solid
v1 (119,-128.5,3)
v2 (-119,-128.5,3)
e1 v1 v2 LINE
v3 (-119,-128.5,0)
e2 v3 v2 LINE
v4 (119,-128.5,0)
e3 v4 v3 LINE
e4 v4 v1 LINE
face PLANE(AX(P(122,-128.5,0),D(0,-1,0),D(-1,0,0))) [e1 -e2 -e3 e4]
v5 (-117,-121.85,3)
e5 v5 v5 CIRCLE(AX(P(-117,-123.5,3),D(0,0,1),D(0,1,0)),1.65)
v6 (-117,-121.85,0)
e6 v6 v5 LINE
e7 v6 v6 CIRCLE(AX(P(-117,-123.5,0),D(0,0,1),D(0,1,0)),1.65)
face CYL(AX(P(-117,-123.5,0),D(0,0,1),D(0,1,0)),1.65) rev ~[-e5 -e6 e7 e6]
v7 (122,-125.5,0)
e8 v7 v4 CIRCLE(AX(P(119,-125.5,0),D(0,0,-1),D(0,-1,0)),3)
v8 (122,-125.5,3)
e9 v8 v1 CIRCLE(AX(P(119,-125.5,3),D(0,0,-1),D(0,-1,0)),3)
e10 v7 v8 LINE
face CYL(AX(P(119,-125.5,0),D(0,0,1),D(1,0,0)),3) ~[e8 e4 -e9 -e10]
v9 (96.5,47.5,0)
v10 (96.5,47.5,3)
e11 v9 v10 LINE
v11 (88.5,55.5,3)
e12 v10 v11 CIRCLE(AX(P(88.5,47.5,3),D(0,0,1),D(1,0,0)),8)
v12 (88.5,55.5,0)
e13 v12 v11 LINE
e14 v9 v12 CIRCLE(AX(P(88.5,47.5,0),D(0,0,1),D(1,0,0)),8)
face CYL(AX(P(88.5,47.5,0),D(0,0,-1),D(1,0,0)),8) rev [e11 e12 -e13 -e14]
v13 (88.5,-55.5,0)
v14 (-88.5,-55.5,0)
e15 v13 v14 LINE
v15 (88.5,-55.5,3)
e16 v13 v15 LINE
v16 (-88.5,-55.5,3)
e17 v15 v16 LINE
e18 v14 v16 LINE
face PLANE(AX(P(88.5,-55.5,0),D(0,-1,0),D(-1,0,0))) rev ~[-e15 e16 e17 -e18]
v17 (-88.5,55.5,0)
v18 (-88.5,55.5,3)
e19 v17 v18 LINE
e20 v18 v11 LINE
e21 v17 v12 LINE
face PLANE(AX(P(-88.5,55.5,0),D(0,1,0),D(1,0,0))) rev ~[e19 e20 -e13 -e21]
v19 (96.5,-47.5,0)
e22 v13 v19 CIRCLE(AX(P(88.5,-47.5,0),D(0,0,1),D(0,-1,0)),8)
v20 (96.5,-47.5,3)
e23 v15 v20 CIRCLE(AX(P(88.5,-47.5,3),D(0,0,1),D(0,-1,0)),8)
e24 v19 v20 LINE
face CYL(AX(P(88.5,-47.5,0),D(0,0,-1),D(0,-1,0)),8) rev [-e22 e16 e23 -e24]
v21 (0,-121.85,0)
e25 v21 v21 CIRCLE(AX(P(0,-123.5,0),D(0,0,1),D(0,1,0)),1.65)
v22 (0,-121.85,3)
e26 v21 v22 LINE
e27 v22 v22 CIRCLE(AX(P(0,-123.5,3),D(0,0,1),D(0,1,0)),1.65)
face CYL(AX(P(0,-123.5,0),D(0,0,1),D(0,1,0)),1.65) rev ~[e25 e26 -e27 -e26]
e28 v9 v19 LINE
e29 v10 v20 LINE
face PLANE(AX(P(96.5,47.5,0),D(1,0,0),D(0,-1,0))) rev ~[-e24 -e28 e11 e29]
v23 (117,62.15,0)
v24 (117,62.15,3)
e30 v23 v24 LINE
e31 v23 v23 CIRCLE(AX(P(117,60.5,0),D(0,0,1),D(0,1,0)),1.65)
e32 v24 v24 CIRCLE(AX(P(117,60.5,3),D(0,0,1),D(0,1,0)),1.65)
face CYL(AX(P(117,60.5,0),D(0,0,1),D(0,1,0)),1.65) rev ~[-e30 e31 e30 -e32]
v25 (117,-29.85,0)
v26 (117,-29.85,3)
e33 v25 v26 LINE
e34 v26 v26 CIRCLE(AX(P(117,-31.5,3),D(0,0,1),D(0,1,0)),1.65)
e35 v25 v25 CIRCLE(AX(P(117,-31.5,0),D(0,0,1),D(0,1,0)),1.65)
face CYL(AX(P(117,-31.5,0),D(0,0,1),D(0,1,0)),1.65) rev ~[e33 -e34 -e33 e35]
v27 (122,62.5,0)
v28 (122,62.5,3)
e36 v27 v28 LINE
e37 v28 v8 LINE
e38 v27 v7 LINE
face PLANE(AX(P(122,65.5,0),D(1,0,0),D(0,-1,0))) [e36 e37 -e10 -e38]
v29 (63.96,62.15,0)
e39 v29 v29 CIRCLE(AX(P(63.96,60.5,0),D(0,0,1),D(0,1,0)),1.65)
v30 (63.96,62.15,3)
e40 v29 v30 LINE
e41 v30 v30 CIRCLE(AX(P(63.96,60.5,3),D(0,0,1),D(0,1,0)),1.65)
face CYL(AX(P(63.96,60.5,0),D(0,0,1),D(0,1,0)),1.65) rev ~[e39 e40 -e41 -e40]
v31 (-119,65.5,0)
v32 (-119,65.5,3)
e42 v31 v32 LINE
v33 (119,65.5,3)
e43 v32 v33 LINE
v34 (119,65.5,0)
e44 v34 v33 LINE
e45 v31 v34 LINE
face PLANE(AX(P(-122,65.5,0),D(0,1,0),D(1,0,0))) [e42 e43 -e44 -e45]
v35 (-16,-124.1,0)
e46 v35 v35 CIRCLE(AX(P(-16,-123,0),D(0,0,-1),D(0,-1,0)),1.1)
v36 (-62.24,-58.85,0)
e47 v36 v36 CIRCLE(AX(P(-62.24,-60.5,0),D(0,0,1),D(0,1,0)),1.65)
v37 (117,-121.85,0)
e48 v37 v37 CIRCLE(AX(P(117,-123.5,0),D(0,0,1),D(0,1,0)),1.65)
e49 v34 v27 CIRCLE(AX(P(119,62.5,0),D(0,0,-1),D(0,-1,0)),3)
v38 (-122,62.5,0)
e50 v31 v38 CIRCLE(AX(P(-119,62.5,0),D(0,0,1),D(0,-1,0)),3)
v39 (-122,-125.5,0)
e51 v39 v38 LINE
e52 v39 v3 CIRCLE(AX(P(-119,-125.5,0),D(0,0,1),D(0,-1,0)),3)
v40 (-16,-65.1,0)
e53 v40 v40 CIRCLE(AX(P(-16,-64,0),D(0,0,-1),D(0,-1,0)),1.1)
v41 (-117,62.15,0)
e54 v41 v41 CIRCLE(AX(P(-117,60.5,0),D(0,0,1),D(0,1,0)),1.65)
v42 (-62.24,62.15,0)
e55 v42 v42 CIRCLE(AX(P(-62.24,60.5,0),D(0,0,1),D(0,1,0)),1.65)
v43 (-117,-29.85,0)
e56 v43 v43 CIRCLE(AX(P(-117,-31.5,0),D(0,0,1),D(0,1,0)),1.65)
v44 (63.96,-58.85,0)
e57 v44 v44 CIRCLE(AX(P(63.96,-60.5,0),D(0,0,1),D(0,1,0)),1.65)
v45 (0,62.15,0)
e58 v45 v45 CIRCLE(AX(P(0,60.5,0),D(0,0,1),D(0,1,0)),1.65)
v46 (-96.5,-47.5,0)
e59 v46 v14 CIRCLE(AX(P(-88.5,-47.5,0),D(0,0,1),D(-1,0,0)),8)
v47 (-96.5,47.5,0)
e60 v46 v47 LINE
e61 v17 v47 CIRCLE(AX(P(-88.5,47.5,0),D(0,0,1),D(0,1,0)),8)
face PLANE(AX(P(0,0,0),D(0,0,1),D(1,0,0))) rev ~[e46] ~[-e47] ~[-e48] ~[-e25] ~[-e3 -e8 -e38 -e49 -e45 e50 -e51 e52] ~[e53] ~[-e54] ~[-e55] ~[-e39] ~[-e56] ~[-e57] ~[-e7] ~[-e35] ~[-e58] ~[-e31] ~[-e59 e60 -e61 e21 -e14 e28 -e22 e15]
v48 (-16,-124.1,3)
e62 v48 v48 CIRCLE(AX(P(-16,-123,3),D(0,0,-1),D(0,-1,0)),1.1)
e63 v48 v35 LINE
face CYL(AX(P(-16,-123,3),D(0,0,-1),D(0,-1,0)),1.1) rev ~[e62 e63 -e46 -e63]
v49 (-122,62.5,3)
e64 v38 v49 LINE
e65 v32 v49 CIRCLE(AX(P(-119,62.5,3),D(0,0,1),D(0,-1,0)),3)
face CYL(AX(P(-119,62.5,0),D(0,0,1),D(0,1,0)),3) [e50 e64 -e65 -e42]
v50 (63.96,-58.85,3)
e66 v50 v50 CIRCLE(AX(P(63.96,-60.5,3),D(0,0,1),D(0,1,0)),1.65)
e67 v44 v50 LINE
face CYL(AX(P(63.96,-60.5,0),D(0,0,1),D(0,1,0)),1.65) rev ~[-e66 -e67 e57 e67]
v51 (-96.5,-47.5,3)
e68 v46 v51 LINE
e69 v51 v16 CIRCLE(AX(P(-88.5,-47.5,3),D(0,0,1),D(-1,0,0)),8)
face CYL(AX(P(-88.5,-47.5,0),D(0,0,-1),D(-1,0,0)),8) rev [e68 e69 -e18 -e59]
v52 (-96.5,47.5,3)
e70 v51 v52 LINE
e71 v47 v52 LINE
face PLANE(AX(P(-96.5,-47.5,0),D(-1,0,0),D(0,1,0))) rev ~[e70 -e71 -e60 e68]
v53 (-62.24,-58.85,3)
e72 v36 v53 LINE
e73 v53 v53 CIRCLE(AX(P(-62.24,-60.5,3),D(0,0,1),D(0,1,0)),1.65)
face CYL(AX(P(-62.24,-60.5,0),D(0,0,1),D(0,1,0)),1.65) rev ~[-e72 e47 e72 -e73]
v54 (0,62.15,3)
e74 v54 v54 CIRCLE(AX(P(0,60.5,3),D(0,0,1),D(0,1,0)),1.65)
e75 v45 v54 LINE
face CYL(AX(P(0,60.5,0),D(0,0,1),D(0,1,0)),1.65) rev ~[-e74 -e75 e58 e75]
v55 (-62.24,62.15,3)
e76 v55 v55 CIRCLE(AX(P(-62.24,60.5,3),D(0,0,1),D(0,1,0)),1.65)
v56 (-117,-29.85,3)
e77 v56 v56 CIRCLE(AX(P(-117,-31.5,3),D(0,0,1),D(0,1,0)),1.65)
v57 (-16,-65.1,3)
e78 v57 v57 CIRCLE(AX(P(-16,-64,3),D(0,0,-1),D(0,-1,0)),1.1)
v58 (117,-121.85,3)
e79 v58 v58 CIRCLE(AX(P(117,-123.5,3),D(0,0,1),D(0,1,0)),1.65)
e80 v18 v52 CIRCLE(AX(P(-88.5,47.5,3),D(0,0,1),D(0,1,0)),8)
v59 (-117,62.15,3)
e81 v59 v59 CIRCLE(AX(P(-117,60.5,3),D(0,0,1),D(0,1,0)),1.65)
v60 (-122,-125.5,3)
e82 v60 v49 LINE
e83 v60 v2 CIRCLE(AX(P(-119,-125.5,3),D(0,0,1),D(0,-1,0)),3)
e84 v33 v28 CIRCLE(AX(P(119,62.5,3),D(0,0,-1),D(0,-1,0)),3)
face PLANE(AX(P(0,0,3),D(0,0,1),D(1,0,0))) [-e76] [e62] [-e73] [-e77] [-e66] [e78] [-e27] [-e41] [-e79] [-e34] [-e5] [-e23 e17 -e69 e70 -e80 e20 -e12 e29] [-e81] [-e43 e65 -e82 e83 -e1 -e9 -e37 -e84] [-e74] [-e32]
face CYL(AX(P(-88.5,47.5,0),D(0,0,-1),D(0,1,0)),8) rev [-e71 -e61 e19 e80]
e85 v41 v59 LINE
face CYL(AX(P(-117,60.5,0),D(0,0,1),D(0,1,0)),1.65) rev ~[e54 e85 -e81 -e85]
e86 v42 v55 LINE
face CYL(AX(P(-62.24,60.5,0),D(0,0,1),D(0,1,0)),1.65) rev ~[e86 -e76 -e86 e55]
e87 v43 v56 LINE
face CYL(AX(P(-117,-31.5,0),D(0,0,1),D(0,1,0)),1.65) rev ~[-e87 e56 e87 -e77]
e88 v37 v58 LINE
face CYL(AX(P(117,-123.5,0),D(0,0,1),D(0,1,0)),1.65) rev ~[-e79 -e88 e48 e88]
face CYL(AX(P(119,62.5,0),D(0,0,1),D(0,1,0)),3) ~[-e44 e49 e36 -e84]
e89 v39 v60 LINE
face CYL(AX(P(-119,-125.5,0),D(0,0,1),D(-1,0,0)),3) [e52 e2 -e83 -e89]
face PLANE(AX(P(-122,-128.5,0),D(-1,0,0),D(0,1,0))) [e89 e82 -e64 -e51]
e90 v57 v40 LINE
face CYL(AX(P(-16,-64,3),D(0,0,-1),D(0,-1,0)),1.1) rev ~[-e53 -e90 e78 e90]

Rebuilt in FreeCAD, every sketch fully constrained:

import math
import FreeCAD as App
import Part
import Sketcher

V = App.Vector
Q = App.Units.Quantity


def edges_at(feature, points):
    """Names of the edges that pass closest to the given points."""
    edges = feature.Shape.Edges
    near = lambda p: min(range(len(edges)), key=lambda i: edges[i].distToShape(Part.Vertex(*p))[0])
    return sorted({f"Edge{near(p) + 1}" for p in points})

doc = App.newDocument("Part")
body = doc.addObject("PartDesign::Body", "Body")

sketch1 = body.newObject("Sketcher::SketchObject", "Sketch")
sketch1.AttachmentSupport = (doc.getObject("XY_Plane"), [""])
sketch1.MapMode = "FlatFace"
sketch1.addGeometry(Part.LineSegment(V(122, 66, 0), V(-122, 66, 0)), False)
sketch1.addGeometry(Part.LineSegment(V(-122, 66, 0), V(-122, -128, 0)), False)
sketch1.addGeometry(Part.LineSegment(V(-122, -128, 0), V(122, -128, 0)), False)
sketch1.addGeometry(Part.LineSegment(V(122, -128, 0), V(122, 66, 0)), False)
sketch1.addGeometry(Part.ArcOfCircle(Part.Circle(V(-88, 48, 0), V(0, 0, 1), 8), math.radians(90), math.radians(180)), False)
sketch1.addGeometry(Part.LineSegment(V(-88, 56, 0), V(88, 56, 0)), False)
sketch1.addGeometry(Part.ArcOfCircle(Part.Circle(V(88, 48, 0), V(0, 0, 1), 8), math.radians(0), math.radians(90)), False)
sketch1.addGeometry(Part.LineSegment(V(96, 48, 0), V(96, -48, 0)), False)
sketch1.addGeometry(Part.ArcOfCircle(Part.Circle(V(88, -48, 0), V(0, 0, 1), 8), math.radians(-90), math.radians(0)), False)
sketch1.addGeometry(Part.LineSegment(V(88, -56, 0), V(-88, -56, 0)), False)
sketch1.addGeometry(Part.ArcOfCircle(Part.Circle(V(-88, -48, 0), V(0, 0, 1), 8), math.radians(180), math.radians(270)), False)
sketch1.addGeometry(Part.LineSegment(V(-96, -48, 0), V(-96, 48, 0)), False)
sketch1.addConstraint(Sketcher.Constraint("Coincident", 0, 2, 1, 1))
sketch1.addConstraint(Sketcher.Constraint("Coincident", 1, 2, 2, 1))
sketch1.addConstraint(Sketcher.Constraint("Coincident", 2, 2, 3, 1))
sketch1.addConstraint(Sketcher.Constraint("Coincident", 3, 2, 0, 1))
sketch1.addConstraint(Sketcher.Constraint("Tangent", 4, 1, 5, 1))
sketch1.addConstraint(Sketcher.Constraint("Tangent", 5, 2, 6, 2))
sketch1.addConstraint(Sketcher.Constraint("Tangent", 6, 1, 7, 1))
sketch1.addConstraint(Sketcher.Constraint("Tangent", 7, 2, 8, 2))
sketch1.addConstraint(Sketcher.Constraint("Tangent", 8, 1, 9, 1))
sketch1.addConstraint(Sketcher.Constraint("Tangent", 9, 2, 10, 2))
sketch1.addConstraint(Sketcher.Constraint("Tangent", 10, 1, 11, 1))
sketch1.addConstraint(Sketcher.Constraint("Tangent", 11, 2, 4, 2))
sketch1.addConstraint(Sketcher.Constraint("Horizontal", 0))
sketch1.addConstraint(Sketcher.Constraint("Vertical", 1))
sketch1.addConstraint(Sketcher.Constraint("Horizontal", 2))
sketch1.addConstraint(Sketcher.Constraint("Vertical", 3))
sketch1.addConstraint(Sketcher.Constraint("Horizontal", 5))
sketch1.addConstraint(Sketcher.Constraint("Vertical", 7))
sketch1.addConstraint(Sketcher.Constraint("Horizontal", 9))
sketch1.addConstraint(Sketcher.Constraint("Vertical", 11))
sketch1.addConstraint(Sketcher.Constraint("Equal", 4, 6))
sketch1.addConstraint(Sketcher.Constraint("Equal", 6, 8))
sketch1.addConstraint(Sketcher.Constraint("Equal", 8, 10))
sketch1.addConstraint(Sketcher.Constraint("Symmetric", 4, 3, 8, 3, -1, 1))
sketch1.addConstraint(Sketcher.Constraint("Radius", 4, Q("8 mm")))
sketch1.addConstraint(Sketcher.Constraint("DistanceX", 0, 2, 0, 1, Q("244 mm")))
sketch1.addConstraint(Sketcher.Constraint("DistanceY", 1, 2, 1, 1, Q("194 mm")))
sketch1.addConstraint(Sketcher.Constraint("DistanceY", 4, 1, 0, 2, Q("10 mm")))
sketch1.addConstraint(Sketcher.Constraint("DistanceY", 9, 2, 4, 1, Q("111 mm")))
sketch1.addConstraint(Sketcher.Constraint("DistanceX", 5, 1, 5, 2, Q("177 mm")))
sketch1.addConstraint(Sketcher.Constraint("DistanceX", 0, 2, -1, 1, Q("122 mm")))
pad1 = body.newObject("PartDesign::Pad", "Pad")
pad1.Profile = sketch1
pad1.Length = 3

sketch2 = body.newObject("Sketcher::SketchObject", "Sketch001")
sketch2.AttachmentSupport = (doc.getObject("XY_Plane"), [""])
sketch2.MapMode = "FlatFace"
sketch2.addGeometry(Part.Circle(V(-62.2, 33.9, 0), V(0, 0, 1), 1.6), False)
sketch2.addGeometry(Part.Circle(V(-62.2, -31.7, 0), V(0, 0, 1), 1.6), False)
sketch2.addGeometry(Part.Circle(V(64, -31.7, 0), V(0, 0, 1), 1.6), False)
sketch2.addGeometry(Part.Circle(V(64, 33.9, 0), V(0, 0, 1), 1.6), False)
sketch2.addGeometry(Part.Circle(V(-62.2, 60.5, 0), V(0, 0, 1), 1.6), False)
sketch2.addGeometry(Part.Circle(V(-62.2, -60.5, 0), V(0, 0, 1), 1.6), False)
sketch2.addGeometry(Part.Circle(V(64, -60.5, 0), V(0, 0, 1), 1.6), False)
sketch2.addGeometry(Part.Circle(V(64, 60.5, 0), V(0, 0, 1), 1.6), False)
sketch2.addGeometry(Part.Circle(V(-117, -123.5, 0), V(0, 0, 1), 1.6), False)
sketch2.addGeometry(Part.Circle(V(0, -123.5, 0), V(0, 0, 1), 1.6), False)
sketch2.addGeometry(Part.Circle(V(117, -123.5, 0), V(0, 0, 1), 1.6), False)
sketch2.addGeometry(Part.Circle(V(-117, -31.5, 0), V(0, 0, 1), 1.6), False)
sketch2.addGeometry(Part.Circle(V(0, -31.5, 0), V(0, 0, 1), 1.6), False)
sketch2.addGeometry(Part.Circle(V(117, -31.5, 0), V(0, 0, 1), 1.6), False)
sketch2.addGeometry(Part.Circle(V(-117, 60.5, 0), V(0, 0, 1), 1.6), False)
sketch2.addGeometry(Part.Circle(V(0, 60.5, 0), V(0, 0, 1), 1.6), False)
sketch2.addGeometry(Part.Circle(V(117, 60.5, 0), V(0, 0, 1), 1.6), False)
sketch2.addConstraint(Sketcher.Constraint("Equal", 0, 1))
sketch2.addConstraint(Sketcher.Constraint("Equal", 1, 2))
sketch2.addConstraint(Sketcher.Constraint("Equal", 2, 3))
sketch2.addConstraint(Sketcher.Constraint("Equal", 3, 4))
sketch2.addConstraint(Sketcher.Constraint("Equal", 4, 5))
sketch2.addConstraint(Sketcher.Constraint("Equal", 5, 6))
sketch2.addConstraint(Sketcher.Constraint("Equal", 6, 7))
sketch2.addConstraint(Sketcher.Constraint("Equal", 7, 8))
sketch2.addConstraint(Sketcher.Constraint("Equal", 8, 9))
sketch2.addConstraint(Sketcher.Constraint("Equal", 9, 10))
sketch2.addConstraint(Sketcher.Constraint("Equal", 10, 11))
sketch2.addConstraint(Sketcher.Constraint("Equal", 11, 12))
sketch2.addConstraint(Sketcher.Constraint("Equal", 12, 13))
sketch2.addConstraint(Sketcher.Constraint("Equal", 13, 14))
sketch2.addConstraint(Sketcher.Constraint("Equal", 14, 15))
sketch2.addConstraint(Sketcher.Constraint("Equal", 15, 16))
sketch2.addConstraint(Sketcher.Constraint("Symmetric", 8, 3, 10, 3, -2))
sketch2.addConstraint(Sketcher.Constraint("Symmetric", 11, 3, 13, 3, -2))
sketch2.addConstraint(Sketcher.Constraint("Symmetric", 14, 3, 16, 3, -2))
sketch2.addConstraint(Sketcher.Constraint("Symmetric", 4, 3, 5, 3, -1))
sketch2.addConstraint(Sketcher.Constraint("Symmetric", 6, 3, 7, 3, -1))
sketch2.addConstraint(Sketcher.Constraint("PointOnObject", 9, 3, -2))
sketch2.addConstraint(Sketcher.Constraint("PointOnObject", 12, 3, -2))
sketch2.addConstraint(Sketcher.Constraint("PointOnObject", 15, 3, -2))
sketch2.addConstraint(Sketcher.Constraint("Horizontal", 1, 3, 2, 3))
sketch2.addConstraint(Sketcher.Constraint("Horizontal", 0, 3, 3, 3))
sketch2.addConstraint(Sketcher.Constraint("Horizontal", 5, 3, 6, 3))
sketch2.addConstraint(Sketcher.Constraint("Horizontal", 8, 3, 9, 3))
sketch2.addConstraint(Sketcher.Constraint("Horizontal", 11, 3, 12, 3))
sketch2.addConstraint(Sketcher.Constraint("Horizontal", 7, 3, 14, 3))
sketch2.addConstraint(Sketcher.Constraint("Horizontal", 14, 3, 15, 3))
sketch2.addConstraint(Sketcher.Constraint("Vertical", 0, 3, 1, 3))
sketch2.addConstraint(Sketcher.Constraint("Vertical", 2, 3, 3, 3))
sketch2.addConstraint(Sketcher.Constraint("Vertical", 1, 3, 4, 3))
sketch2.addConstraint(Sketcher.Constraint("Vertical", 3, 3, 6, 3))
sketch2.addConstraint(Sketcher.Constraint("Vertical", 8, 3, 11, 3))
sketch2.addConstraint(Sketcher.Constraint("Vertical", 11, 3, 14, 3))
sketch2.addConstraint(Sketcher.Constraint("Diameter", 0, Q("3.3 mm")))
sketch2.addConstraint(Sketcher.Constraint("DistanceX", 8, 3, -1, 1, Q("117 mm")))
sketch2.addConstraint(Sketcher.Constraint("DistanceY", 5, 3, 4, 3, Q("121 mm")))
sketch2.addConstraint(Sketcher.Constraint("DistanceY", 8, 3, 5, 3, Q("63 mm")))
sketch2.addConstraint(Sketcher.Constraint("DistanceY", 5, 3, 11, 3, Q("29 mm")))
sketch2.addConstraint(Sketcher.Constraint("DistanceX", 1, 3, 2, 3, Q("126.2 mm")))
sketch2.addConstraint(Sketcher.Constraint("DistanceX", 0, 3, -1, 1, Q("62.24 mm")))
sketch2.addConstraint(Sketcher.Constraint("DistanceY", -1, 1, 0, 3, Q("33.92 mm")))
sketch2.addConstraint(Sketcher.Constraint("DistanceY", 1, 3, -1, 1, Q("31.73 mm")))
doc.recompute()
hole = body.newObject("PartDesign::Hole", "Hole")
hole.Profile = sketch2
hole.ThreadType = "None"
hole.Diameter = 3.3
hole.DepthType = "ThroughAll"
hole.Reversed = True
doc.recompute()

fillet = body.newObject("PartDesign::Fillet", "Fillet")
fillet.Base = (hole, edges_at(hole, [
    (122, -128.5, 1.5),
    (122, 65.5, 1.5),
    (-122, 65.5, 1.5),
    (-122, -128.5, 1.5),
]))
fillet.Radius = 3

sketch3 = body.newObject("Sketcher::SketchObject", "Sketch002")
sketch3.AttachmentSupport = (doc.getObject("XY_Plane"), [""])
sketch3.MapMode = "FlatFace"
sketch3.AttachmentOffset = App.Placement(V(0, 0, 3), App.Rotation())
sketch3.addGeometry(Part.Circle(V(-16, -123, 0), V(0, 0, 1), 1.1), False)
sketch3.addGeometry(Part.Circle(V(-16, -64, 0), V(0, 0, 1), 1.1), False)
sketch3.addConstraint(Sketcher.Constraint("Equal", 0, 1))
sketch3.addConstraint(Sketcher.Constraint("Vertical", 0, 3, 1, 3))
sketch3.addConstraint(Sketcher.Constraint("Diameter", 0, Q("2.2 mm")))
sketch3.addConstraint(Sketcher.Constraint("DistanceX", 0, 3, -1, 1, Q("16 mm")))
sketch3.addConstraint(Sketcher.Constraint("DistanceY", 0, 3, -1, 1, Q("123 mm")))
sketch3.addConstraint(Sketcher.Constraint("DistanceY", 1, 3, -1, 1, Q("64 mm")))
doc.recompute()
hole2 = body.newObject("PartDesign::Hole", "Hole001")
hole2.Profile = sketch3
hole2.ThreadType = "None"
hole2.Diameter = 2.2
hole2.DepthType = "ThroughAll"

doc.recompute()
